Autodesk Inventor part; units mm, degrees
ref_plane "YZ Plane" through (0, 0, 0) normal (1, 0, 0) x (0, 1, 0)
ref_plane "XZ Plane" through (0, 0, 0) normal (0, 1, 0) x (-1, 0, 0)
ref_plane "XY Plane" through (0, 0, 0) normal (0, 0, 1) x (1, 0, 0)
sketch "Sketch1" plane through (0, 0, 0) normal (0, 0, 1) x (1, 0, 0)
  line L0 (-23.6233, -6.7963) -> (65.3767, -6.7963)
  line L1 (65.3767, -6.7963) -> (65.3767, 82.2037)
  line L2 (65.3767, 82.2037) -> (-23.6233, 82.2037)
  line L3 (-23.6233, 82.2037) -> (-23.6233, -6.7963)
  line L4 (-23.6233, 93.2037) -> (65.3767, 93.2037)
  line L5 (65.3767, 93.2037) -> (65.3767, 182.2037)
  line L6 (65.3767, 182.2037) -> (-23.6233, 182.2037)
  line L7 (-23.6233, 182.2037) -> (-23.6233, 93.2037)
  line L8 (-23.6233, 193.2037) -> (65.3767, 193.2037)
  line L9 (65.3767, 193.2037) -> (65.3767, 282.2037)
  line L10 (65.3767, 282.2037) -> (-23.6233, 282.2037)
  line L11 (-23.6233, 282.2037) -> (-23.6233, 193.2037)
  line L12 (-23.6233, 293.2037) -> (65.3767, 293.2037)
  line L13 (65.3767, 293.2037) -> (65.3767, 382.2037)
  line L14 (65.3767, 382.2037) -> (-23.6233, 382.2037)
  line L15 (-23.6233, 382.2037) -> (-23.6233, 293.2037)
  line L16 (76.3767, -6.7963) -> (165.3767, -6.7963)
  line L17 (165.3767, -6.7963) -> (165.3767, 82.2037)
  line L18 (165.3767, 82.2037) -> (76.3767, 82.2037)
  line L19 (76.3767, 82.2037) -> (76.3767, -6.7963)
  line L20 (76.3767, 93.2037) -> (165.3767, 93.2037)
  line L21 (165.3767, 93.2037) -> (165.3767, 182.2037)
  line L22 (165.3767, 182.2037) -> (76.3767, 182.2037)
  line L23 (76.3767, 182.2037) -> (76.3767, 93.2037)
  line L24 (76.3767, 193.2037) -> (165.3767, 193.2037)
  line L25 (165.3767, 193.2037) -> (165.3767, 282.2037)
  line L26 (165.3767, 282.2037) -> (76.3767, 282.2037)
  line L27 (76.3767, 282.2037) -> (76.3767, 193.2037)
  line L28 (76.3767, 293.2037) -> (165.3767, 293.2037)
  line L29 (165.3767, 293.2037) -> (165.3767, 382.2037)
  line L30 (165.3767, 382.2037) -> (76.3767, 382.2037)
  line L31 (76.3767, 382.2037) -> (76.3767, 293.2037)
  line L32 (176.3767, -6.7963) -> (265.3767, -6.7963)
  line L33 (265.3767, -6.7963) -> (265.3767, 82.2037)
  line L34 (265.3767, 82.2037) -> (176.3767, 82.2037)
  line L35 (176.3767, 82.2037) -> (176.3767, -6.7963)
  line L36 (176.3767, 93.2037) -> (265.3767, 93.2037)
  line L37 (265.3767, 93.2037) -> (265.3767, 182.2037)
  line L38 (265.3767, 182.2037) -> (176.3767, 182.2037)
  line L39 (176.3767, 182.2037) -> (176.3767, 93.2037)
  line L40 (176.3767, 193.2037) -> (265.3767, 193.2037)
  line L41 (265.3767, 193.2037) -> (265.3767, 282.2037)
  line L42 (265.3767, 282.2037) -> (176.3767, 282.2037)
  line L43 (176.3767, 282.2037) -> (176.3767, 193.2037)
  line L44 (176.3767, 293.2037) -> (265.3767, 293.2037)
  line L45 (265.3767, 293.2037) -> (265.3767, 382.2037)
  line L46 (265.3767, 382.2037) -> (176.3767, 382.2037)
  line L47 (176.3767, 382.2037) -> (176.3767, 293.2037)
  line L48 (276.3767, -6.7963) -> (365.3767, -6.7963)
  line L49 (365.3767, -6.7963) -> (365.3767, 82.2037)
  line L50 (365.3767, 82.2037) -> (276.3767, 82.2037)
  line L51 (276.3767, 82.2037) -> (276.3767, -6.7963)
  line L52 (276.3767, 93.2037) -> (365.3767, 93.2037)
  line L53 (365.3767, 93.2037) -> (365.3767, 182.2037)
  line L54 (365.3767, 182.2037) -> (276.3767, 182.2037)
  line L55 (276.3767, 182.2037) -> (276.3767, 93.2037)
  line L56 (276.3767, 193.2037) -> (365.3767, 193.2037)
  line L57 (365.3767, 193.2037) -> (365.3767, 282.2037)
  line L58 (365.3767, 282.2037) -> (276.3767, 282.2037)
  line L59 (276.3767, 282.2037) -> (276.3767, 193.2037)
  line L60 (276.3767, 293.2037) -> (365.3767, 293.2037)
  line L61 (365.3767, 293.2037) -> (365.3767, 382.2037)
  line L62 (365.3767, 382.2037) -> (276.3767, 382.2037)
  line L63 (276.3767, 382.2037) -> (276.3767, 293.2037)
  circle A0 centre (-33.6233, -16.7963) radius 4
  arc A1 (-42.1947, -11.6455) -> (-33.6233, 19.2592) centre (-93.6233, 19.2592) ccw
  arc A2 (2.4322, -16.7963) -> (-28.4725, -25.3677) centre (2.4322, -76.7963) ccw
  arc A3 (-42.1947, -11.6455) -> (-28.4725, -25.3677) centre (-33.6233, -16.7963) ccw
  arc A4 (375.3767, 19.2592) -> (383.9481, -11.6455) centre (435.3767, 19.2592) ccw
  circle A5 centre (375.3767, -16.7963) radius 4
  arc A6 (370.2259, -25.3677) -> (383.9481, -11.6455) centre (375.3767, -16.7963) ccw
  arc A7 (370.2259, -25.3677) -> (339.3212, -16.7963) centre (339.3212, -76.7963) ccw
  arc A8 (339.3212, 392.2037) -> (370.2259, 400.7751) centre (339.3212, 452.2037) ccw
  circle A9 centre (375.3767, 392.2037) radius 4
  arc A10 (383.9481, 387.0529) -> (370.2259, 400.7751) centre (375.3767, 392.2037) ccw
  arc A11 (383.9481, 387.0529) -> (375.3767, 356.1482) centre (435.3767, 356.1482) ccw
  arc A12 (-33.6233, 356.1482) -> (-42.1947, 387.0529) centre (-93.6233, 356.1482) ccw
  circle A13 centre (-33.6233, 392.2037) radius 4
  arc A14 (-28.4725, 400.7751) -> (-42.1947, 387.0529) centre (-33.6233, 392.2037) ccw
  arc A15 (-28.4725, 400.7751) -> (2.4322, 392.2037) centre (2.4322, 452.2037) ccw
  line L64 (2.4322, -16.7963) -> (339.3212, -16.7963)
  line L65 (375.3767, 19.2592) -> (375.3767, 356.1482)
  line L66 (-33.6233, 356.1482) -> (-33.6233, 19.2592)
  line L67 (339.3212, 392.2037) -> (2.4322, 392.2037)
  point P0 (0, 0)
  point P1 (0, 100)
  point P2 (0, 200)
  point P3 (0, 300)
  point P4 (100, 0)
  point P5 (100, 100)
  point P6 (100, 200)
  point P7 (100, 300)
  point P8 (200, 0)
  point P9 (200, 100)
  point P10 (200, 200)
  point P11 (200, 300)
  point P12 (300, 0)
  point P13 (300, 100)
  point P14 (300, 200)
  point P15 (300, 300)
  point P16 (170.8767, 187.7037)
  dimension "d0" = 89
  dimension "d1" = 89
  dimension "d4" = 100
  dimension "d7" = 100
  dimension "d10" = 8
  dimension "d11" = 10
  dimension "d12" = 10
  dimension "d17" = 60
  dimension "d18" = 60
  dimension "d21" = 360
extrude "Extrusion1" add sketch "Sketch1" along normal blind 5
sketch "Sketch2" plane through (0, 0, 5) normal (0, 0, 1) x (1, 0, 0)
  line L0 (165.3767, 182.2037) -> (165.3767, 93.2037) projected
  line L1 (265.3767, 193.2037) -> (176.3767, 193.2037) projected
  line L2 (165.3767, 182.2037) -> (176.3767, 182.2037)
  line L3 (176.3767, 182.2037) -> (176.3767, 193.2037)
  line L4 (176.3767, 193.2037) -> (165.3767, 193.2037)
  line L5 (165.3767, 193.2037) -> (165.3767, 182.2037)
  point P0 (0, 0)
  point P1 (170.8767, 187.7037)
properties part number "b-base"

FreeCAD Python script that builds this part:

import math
import FreeCAD as App
import Part
import Sketcher

V = App.Vector
Q = App.Units.Quantity


def add_polygon(sketch, points):
    """Adds a closed chain of lines whose ends are joined by coincident constraints."""
    first, n = sketch.GeometryCount, len(points)
    for a, b in zip(points, points[1:] + points[:1]):
        sketch.addGeometry(Part.LineSegment(App.Vector(*a, 0), App.Vector(*b, 0)), False)
    for i in range(n):
        sketch.addConstraint(Sketcher.Constraint("Coincident", first + i, 2, first + (i + 1) % n, 1))

doc = App.newDocument("Part")
body = doc.addObject("PartDesign::Body", "Body")

# Sketch on XY plane
sketch1 = body.newObject("Sketcher::SketchObject", "Sketch")
sketch1.AttachmentSupport = (doc.getObject("XY_Plane"), [""])
sketch1.MapMode = "FlatFace"
sketch1.addGeometry(Part.ArcOfCircle(Part.Circle(V(-93.6, 19.3, 0), V(0, 0, 1), 60), math.radians(-31), math.radians(0)), False)  # 0
sketch1.addGeometry(Part.ArcOfCircle(Part.Circle(V(-33.6, -16.8, 0), V(0, 0, 1), 10), math.radians(149), math.radians(301)), False)  # 1
sketch1.addGeometry(Part.ArcOfCircle(Part.Circle(V(2.4, -76.8, 0), V(0, 0, 1), 60), math.radians(90), math.radians(121)), False)  # 2
sketch1.addGeometry(Part.LineSegment(V(2.4, -16.8, 0), V(339.3, -16.8, 0)), False)  # 3
sketch1.addGeometry(Part.ArcOfCircle(Part.Circle(V(339.3, -76.8, 0), V(0, 0, 1), 60), math.radians(59), math.radians(90)), False)  # 4
sketch1.addGeometry(Part.ArcOfCircle(Part.Circle(V(375.4, -16.8, 0), V(0, 0, 1), 10), math.radians(-121), math.radians(31)), False)  # 5
sketch1.addGeometry(Part.ArcOfCircle(Part.Circle(V(435.4, 19.3, 0), V(0, 0, 1), 60), math.radians(180), math.radians(211)), False)  # 6
sketch1.addGeometry(Part.LineSegment(V(375.4, 19.3, 0), V(375.4, 356.1, 0)), False)  # 7
sketch1.addGeometry(Part.ArcOfCircle(Part.Circle(V(435.4, 356.1, 0), V(0, 0, 1), 60), math.radians(149), math.radians(180)), False)  # 8
sketch1.addGeometry(Part.ArcOfCircle(Part.Circle(V(375.4, 392.2, 0), V(0, 0, 1), 10), math.radians(-31), math.radians(121)), False)  # 9
sketch1.addGeometry(Part.ArcOfCircle(Part.Circle(V(339.3, 452.2, 0), V(0, 0, 1), 60), math.radians(-90), math.radians(-59)), False)  # 10
sketch1.addGeometry(Part.LineSegment(V(339.3, 392.2, 0), V(2.4, 392.2, 0)), False)  # 11
sketch1.addGeometry(Part.ArcOfCircle(Part.Circle(V(2.4, 452.2, 0), V(0, 0, 1), 60), math.radians(-121), math.radians(-90)), False)  # 12
sketch1.addGeometry(Part.ArcOfCircle(Part.Circle(V(-33.6, 392.2, 0), V(0, 0, 1), 10), math.radians(59), math.radians(211)), False)  # 13
sketch1.addGeometry(Part.ArcOfCircle(Part.Circle(V(-93.6, 356.1, 0), V(0, 0, 1), 60), math.radians(0), math.radians(31)), False)  # 14
sketch1.addGeometry(Part.LineSegment(V(-33.6, 356.1, 0), V(-33.6, 19.3, 0)), False)  # 15
sketch1.addGeometry(Part.Circle(V(-33.6, -16.8, 0), V(0, 0, 1), 4), False)  # 16
add_polygon(sketch1, [(65.4, -6.8), (-23.6, -6.8), (-23.6, 82.2), (65.4, 82.2)])  # lines 17-20
add_polygon(sketch1, [(165.4, -6.8), (76.4, -6.8), (76.4, 82.2), (165.4, 82.2)])  # lines 21-24
add_polygon(sketch1, [(65.4, 93.2), (-23.6, 93.2), (-23.6, 182.2), (65.4, 182.2)])  # lines 25-28
add_polygon(sketch1, [(165.4, 93.2), (76.4, 93.2), (76.4, 182.2), (165.4, 182.2)])  # lines 29-32
add_polygon(sketch1, [(265.4, -6.8), (176.4, -6.8), (176.4, 82.2), (265.4, 82.2)])  # lines 33-36
sketch1.addGeometry(Part.Circle(V(375.4, -16.8, 0), V(0, 0, 1), 4), False)  # 37
add_polygon(sketch1, [(365.4, -6.8), (276.4, -6.8), (276.4, 82.2), (365.4, 82.2)])  # lines 38-41
add_polygon(sketch1, [(265.4, 93.2), (176.4, 93.2), (176.4, 182.2), (265.4, 182.2)])  # lines 42-45
add_polygon(sketch1, [(365.4, 93.2), (276.4, 93.2), (276.4, 182.2), (365.4, 182.2)])  # lines 46-49
add_polygon(sketch1, [(65.4, 193.2), (-23.6, 193.2), (-23.6, 282.2), (65.4, 282.2)])  # lines 50-53
add_polygon(sketch1, [(165.4, 193.2), (76.4, 193.2), (76.4, 282.2), (165.4, 282.2)])  # lines 54-57
add_polygon(sketch1, [(65.4, 293.2), (-23.6, 293.2), (-23.6, 382.2), (65.4, 382.2)])  # lines 58-61
sketch1.addGeometry(Part.Circle(V(-33.6, 392.2, 0), V(0, 0, 1), 4), False)  # 62
add_polygon(sketch1, [(165.4, 293.2), (76.4, 293.2), (76.4, 382.2), (165.4, 382.2)])  # lines 63-66
add_polygon(sketch1, [(265.4, 193.2), (176.4, 193.2), (176.4, 282.2), (265.4, 282.2)])  # lines 67-70
add_polygon(sketch1, [(365.4, 193.2), (276.4, 193.2), (276.4, 282.2), (365.4, 282.2)])  # lines 71-74
add_polygon(sketch1, [(265.4, 293.2), (176.4, 293.2), (176.4, 382.2), (265.4, 382.2)])  # lines 75-78
add_polygon(sketch1, [(365.4, 293.2), (276.4, 293.2), (276.4, 382.2), (365.4, 382.2)])  # lines 79-82
sketch1.addGeometry(Part.Circle(V(375.4, 392.2, 0), V(0, 0, 1), 4), False)  # 83
sketch1.addConstraint(Sketcher.Constraint("Tangent", 0, 1, 1, 1))
sketch1.addConstraint(Sketcher.Constraint("Tangent", 1, 2, 2, 2))
sketch1.addConstraint(Sketcher.Constraint("Tangent", 2, 1, 3, 1))
sketch1.addConstraint(Sketcher.Constraint("Tangent", 3, 2, 4, 2))
sketch1.addConstraint(Sketcher.Constraint("Tangent", 4, 1, 5, 1))
sketch1.addConstraint(Sketcher.Constraint("Tangent", 5, 2, 6, 2))
sketch1.addConstraint(Sketcher.Constraint("Tangent", 6, 1, 7, 1))
sketch1.addConstraint(Sketcher.Constraint("Tangent", 7, 2, 8, 2))
sketch1.addConstraint(Sketcher.Constraint("Tangent", 8, 1, 9, 1))
sketch1.addConstraint(Sketcher.Constraint("Tangent", 9, 2, 10, 2))
sketch1.addConstraint(Sketcher.Constraint("Tangent", 10, 1, 11, 1))
sketch1.addConstraint(Sketcher.Constraint("Tangent", 11, 2, 12, 2))
sketch1.addConstraint(Sketcher.Constraint("Tangent", 12, 1, 13, 1))
sketch1.addConstraint(Sketcher.Constraint("Tangent", 13, 2, 14, 2))
sketch1.addConstraint(Sketcher.Constraint("Tangent", 14, 1, 15, 1))
sketch1.addConstraint(Sketcher.Constraint("Tangent", 15, 2, 0, 2))
sketch1.addConstraint(Sketcher.Constraint("Horizontal", 3))
sketch1.addConstraint(Sketcher.Constraint("Vertical", 7))
sketch1.addConstraint(Sketcher.Constraint("Horizontal", 11))
sketch1.addConstraint(Sketcher.Constraint("Vertical", 15))
sketch1.addConstraint(Sketcher.Constraint("Horizontal", 17))
sketch1.addConstraint(Sketcher.Constraint("Vertical", 18))
sketch1.addConstraint(Sketcher.Constraint("Horizontal", 19))
sketch1.addConstraint(Sketcher.Constraint("Vertical", 20))
sketch1.addConstraint(Sketcher.Constraint("Horizontal", 21))
sketch1.addConstraint(Sketcher.Constraint("Vertical", 22))
sketch1.addConstraint(Sketcher.Constraint("Horizontal", 23))
sketch1.addConstraint(Sketcher.Constraint("Vertical", 24))
sketch1.addConstraint(Sketcher.Constraint("Horizontal", 25))
sketch1.addConstraint(Sketcher.Constraint("Vertical", 26))
sketch1.addConstraint(Sketcher.Constraint("Horizontal", 27))
sketch1.addConstraint(Sketcher.Constraint("Vertical", 28))
sketch1.addConstraint(Sketcher.Constraint("Horizontal", 29))
sketch1.addConstraint(Sketcher.Constraint("Vertical", 30))
sketch1.addConstraint(Sketcher.Constraint("Horizontal", 31))
sketch1.addConstraint(Sketcher.Constraint("Vertical", 32))
sketch1.addConstraint(Sketcher.Constraint("Horizontal", 33))
sketch1.addConstraint(Sketcher.Constraint("Vertical", 34))
sketch1.addConstraint(Sketcher.Constraint("Horizontal", 35))
sketch1.addConstraint(Sketcher.Constraint("Vertical", 36))
sketch1.addConstraint(Sketcher.Constraint("Horizontal", 38))
sketch1.addConstraint(Sketcher.Constraint("Vertical", 39))
sketch1.addConstraint(Sketcher.Constraint("Horizontal", 40))
sketch1.addConstraint(Sketcher.Constraint("Vertical", 41))
sketch1.addConstraint(Sketcher.Constraint("Horizontal", 42))
sketch1.addConstraint(Sketcher.Constraint("Vertical", 43))
sketch1.addConstraint(Sketcher.Constraint("Horizontal", 44))
sketch1.addConstraint(Sketcher.Constraint("Vertical", 45))
sketch1.addConstraint(Sketcher.Constraint("Horizontal", 46))
sketch1.addConstraint(Sketcher.Constraint("Vertical", 47))
sketch1.addConstraint(Sketcher.Constraint("Horizontal", 48))
sketch1.addConstraint(Sketcher.Constraint("Vertical", 49))
sketch1.addConstraint(Sketcher.Constraint("Horizontal", 50))
sketch1.addConstraint(Sketcher.Constraint("Vertical", 51))
sketch1.addConstraint(Sketcher.Constraint("Horizontal", 52))
sketch1.addConstraint(Sketcher.Constraint("Vertical", 53))
sketch1.addConstraint(Sketcher.Constraint("Horizontal", 54))
sketch1.addConstraint(Sketcher.Constraint("Vertical", 55))
sketch1.addConstraint(Sketcher.Constraint("Horizontal", 56))
sketch1.addConstraint(Sketcher.Constraint("Vertical", 57))
sketch1.addConstraint(Sketcher.Constraint("Horizontal", 58))
sketch1.addConstraint(Sketcher.Constraint("Vertical", 59))
sketch1.addConstraint(Sketcher.Constraint("Horizontal", 60))
sketch1.addConstraint(Sketcher.Constraint("Vertical", 61))
sketch1.addConstraint(Sketcher.Constraint("Horizontal", 63))
sketch1.addConstraint(Sketcher.Constraint("Vertical", 64))
sketch1.addConstraint(Sketcher.Constraint("Horizontal", 65))
sketch1.addConstraint(Sketcher.Constraint("Vertical", 66))
sketch1.addConstraint(Sketcher.Constraint("Horizontal", 67))
sketch1.addConstraint(Sketcher.Constraint("Vertical", 68))
sketch1.addConstraint(Sketcher.Constraint("Horizontal", 69))
sketch1.addConstraint(Sketcher.Constraint("Vertical", 70))
sketch1.addConstraint(Sketcher.Constraint("Horizontal", 71))
sketch1.addConstraint(Sketcher.Constraint("Vertical", 72))
sketch1.addConstraint(Sketcher.Constraint("Horizontal", 73))
sketch1.addConstraint(Sketcher.Constraint("Vertical", 74))
sketch1.addConstraint(Sketcher.Constraint("Horizontal", 75))
sketch1.addConstraint(Sketcher.Constraint("Vertical", 76))
sketch1.addConstraint(Sketcher.Constraint("Horizontal", 77))
sketch1.addConstraint(Sketcher.Constraint("Vertical", 78))
sketch1.addConstraint(Sketcher.Constraint("Horizontal", 79))
sketch1.addConstraint(Sketcher.Constraint("Vertical", 80))
sketch1.addConstraint(Sketcher.Constraint("Horizontal", 81))
sketch1.addConstraint(Sketcher.Constraint("Vertical", 82))
sketch1.addConstraint(Sketcher.Constraint("Coincident", 16, 3, 1, 3))
sketch1.addConstraint(Sketcher.Constraint("Coincident", 37, 3, 5, 3))
sketch1.addConstraint(Sketcher.Constraint("Coincident", 62, 3, 13, 3))
sketch1.addConstraint(Sketcher.Constraint("Coincident", 83, 3, 9, 3))
sketch1.addConstraint(Sketcher.Constraint("Equal", 0, 2))
sketch1.addConstraint(Sketcher.Constraint("Equal", 2, 4))
sketch1.addConstraint(Sketcher.Constraint("Equal", 1, 5))
sketch1.addConstraint(Sketcher.Constraint("Equal", 4, 6))
sketch1.addConstraint(Sketcher.Constraint("Equal", 6, 8))
sketch1.addConstraint(Sketcher.Constraint("Equal", 5, 9))
sketch1.addConstraint(Sketcher.Constraint("Equal", 8, 10))
sketch1.addConstraint(Sketcher.Constraint("Equal", 10, 12))
sketch1.addConstraint(Sketcher.Constraint("Equal", 9, 13))
sketch1.addConstraint(Sketcher.Constraint("Equal", 12, 14))
sketch1.addConstraint(Sketcher.Constraint("Equal", 16, 37))
sketch1.addConstraint(Sketcher.Constraint("Equal", 37, 62))
sketch1.addConstraint(Sketcher.Constraint("Equal", 62, 83))
sketch1.addConstraint(Sketcher.Constraint("Horizontal", 1, 3, 5, 3))
sketch1.addConstraint(Sketcher.Constraint("Horizontal", 0, 3, 6, 3))
sketch1.addConstraint(Sketcher.Constraint("Horizontal", 9, 3, 13, 3))
sketch1.addConstraint(Sketcher.Constraint("Horizontal", 8, 3, 14, 3))
sketch1.addConstraint(Sketcher.Constraint("Horizontal", 37, 3, 2, 1))
sketch1.addConstraint(Sketcher.Constraint("Horizontal", 83, 3, 10, 1))
sketch1.addConstraint(Sketcher.Constraint("Horizontal", 20, 2, 21, 2))
sketch1.addConstraint(Sketcher.Constraint("Horizontal", 19, 2, 22, 2))
sketch1.addConstraint(Sketcher.Constraint("Horizontal", 28, 2, 29, 2))
sketch1.addConstraint(Sketcher.Constraint("Horizontal", 27, 2, 30, 2))
sketch1.addConstraint(Sketcher.Constraint("Horizontal", 24, 2, 33, 2))
sketch1.addConstraint(Sketcher.Constraint("Horizontal", 23, 2, 34, 2))
sketch1.addConstraint(Sketcher.Constraint("Horizontal", 36, 2, 38, 2))
sketch1.addConstraint(Sketcher.Constraint("Horizontal", 35, 2, 39, 2))
sketch1.addConstraint(Sketcher.Constraint("Horizontal", 32, 2, 42, 2))
sketch1.addConstraint(Sketcher.Constraint("Horizontal", 31, 2, 43, 2))
sketch1.addConstraint(Sketcher.Constraint("Horizontal", 45, 2, 46, 2))
sketch1.addConstraint(Sketcher.Constraint("Horizontal", 44, 2, 47, 2))
sketch1.addConstraint(Sketcher.Constraint("Horizontal", 53, 2, 54, 2))
sketch1.addConstraint(Sketcher.Constraint("Horizontal", 52, 2, 55, 2))
sketch1.addConstraint(Sketcher.Constraint("Horizontal", 61, 2, 63, 2))
sketch1.addConstraint(Sketcher.Constraint("Horizontal", 60, 2, 64, 2))
sketch1.addConstraint(Sketcher.Constraint("Horizontal", 57, 2, 67, 2))
sketch1.addConstraint(Sketcher.Constraint("Horizontal", 56, 2, 68, 2))
sketch1.addConstraint(Sketcher.Constraint("Horizontal", 70, 2, 71, 2))
sketch1.addConstraint(Sketcher.Constraint("Horizontal", 69, 2, 72, 2))
sketch1.addConstraint(Sketcher.Constraint("Horizontal", 66, 2, 75, 2))
sketch1.addConstraint(Sketcher.Constraint("Horizontal", 65, 2, 76, 2))
sketch1.addConstraint(Sketcher.Constraint("Horizontal", 78, 2, 79, 2))
sketch1.addConstraint(Sketcher.Constraint("Horizontal", 77, 2, 80, 2))
sketch1.addConstraint(Sketcher.Constraint("Vertical", 5, 3, 9, 3))
sketch1.addConstraint(Sketcher.Constraint("Vertical", 83, 3, 6, 1))
sketch1.addConstraint(Sketcher.Constraint("Vertical", 18, 2, 25, 2))
sketch1.addConstraint(Sketcher.Constraint("Vertical", 20, 2, 27, 2))
sketch1.addConstraint(Sketcher.Constraint("Vertical", 22, 2, 29, 2))
sketch1.addConstraint(Sketcher.Constraint("Vertical", 24, 2, 31, 2))
sketch1.addConstraint(Sketcher.Constraint("Vertical", 34, 2, 42, 2))
sketch1.addConstraint(Sketcher.Constraint("Vertical", 36, 2, 44, 2))
sketch1.addConstraint(Sketcher.Constraint("Vertical", 39, 2, 46, 2))
sketch1.addConstraint(Sketcher.Constraint("Vertical", 41, 2, 48, 2))
sketch1.addConstraint(Sketcher.Constraint("Vertical", 26, 2, 50, 2))
sketch1.addConstraint(Sketcher.Constraint("Vertical", 28, 2, 52, 2))
sketch1.addConstraint(Sketcher.Constraint("Vertical", 30, 2, 54, 2))
sketch1.addConstraint(Sketcher.Constraint("Vertical", 32, 2, 56, 2))
sketch1.addConstraint(Sketcher.Constraint("Vertical", 51, 2, 58, 2))
sketch1.addConstraint(Sketcher.Constraint("Vertical", 53, 2, 60, 2))
sketch1.addConstraint(Sketcher.Constraint("Vertical", 55, 2, 63, 2))
sketch1.addConstraint(Sketcher.Constraint("Vertical", 57, 2, 65, 2))
sketch1.addConstraint(Sketcher.Constraint("Vertical", 43, 2, 67, 2))
sketch1.addConstraint(Sketcher.Constraint("Vertical", 45, 2, 69, 2))
sketch1.addConstraint(Sketcher.Constraint("Vertical", 47, 2, 71, 2))
sketch1.addConstraint(Sketcher.Constraint("Vertical", 49, 2, 73, 2))
sketch1.addConstraint(Sketcher.Constraint("Vertical", 68, 2, 75, 2))
sketch1.addConstraint(Sketcher.Constraint("Vertical", 70, 2, 77, 2))
sketch1.addConstraint(Sketcher.Constraint("Vertical", 72, 2, 79, 2))
sketch1.addConstraint(Sketcher.Constraint("Vertical", 74, 2, 81, 2))
sketch1.addConstraint(Sketcher.Constraint("Equal", 19, 21))
sketch1.addConstraint(Sketcher.Constraint("Equal", 31, 33))
sketch1.addConstraint(Sketcher.Constraint("Equal", 35, 38))
sketch1.addConstraint(Sketcher.Constraint("Equal", 11, 7))
sketch1.addConstraint(Sketcher.Constraint("Equal", 81, 18))
sketch1.addConstraint(Sketcher.Constraint("Equal", 24, 26))
sketch1.addConstraint(Sketcher.Constraint("Equal", 49, 51))
sketch1.addConstraint(Sketcher.Constraint("Equal", 57, 59))
sketch1.addConstraint(Sketcher.Constraint("Diameter", 16, Q("8 mm")))
sketch1.addConstraint(Sketcher.Constraint("Radius", 0, Q("60 mm")))
sketch1.addConstraint(Sketcher.Constraint("Radius", 1, Q("10 mm")))
sketch1.addConstraint(Sketcher.Constraint("DistanceX", 17, 2, 17, 1, Q("89 mm")))
sketch1.addConstraint(Sketcher.Constraint("DistanceX", 3, 1, 3, 2, Q("336.889 mm")))
sketch1.addConstraint(Sketcher.Constraint("DistanceX", -1, 1, 4, 1, Q("370.226 mm")))
sketch1.addConstraint(Sketcher.Constraint("DistanceY", -1, 1, 8, 1, Q("387.053 mm")))
sketch1.addConstraint(Sketcher.Constraint("DistanceX", 17, 2, -1, 1, Q("23.6233 mm")))
sketch1.addConstraint(Sketcher.Constraint("DistanceY", 17, 2, -1, 1, Q("6.7963 mm")))
sketch1.addConstraint(Sketcher.Constraint("DistanceX", -1, 1, 21, 2, Q("76.3767 mm")))
sketch1.addConstraint(Sketcher.Constraint("DistanceY", -1, 1, 25, 2, Q("93.2037 mm")))
sketch1.addConstraint(Sketcher.Constraint("DistanceX", -1, 1, 33, 2, Q("176.3767 mm")))
sketch1.addConstraint(Sketcher.Constraint("DistanceX", -1, 1, 38, 2, Q("276.3767 mm")))
sketch1.addConstraint(Sketcher.Constraint("DistanceY", -1, 1, 50, 2, Q("193.2037 mm")))
sketch1.addConstraint(Sketcher.Constraint("DistanceY", -1, 1, 58, 2, Q("293.2037 mm")))
pad1 = body.newObject("PartDesign::Pad", "Pad")
pad1.Profile = sketch1
pad1.Length = 5

doc.recompute()
